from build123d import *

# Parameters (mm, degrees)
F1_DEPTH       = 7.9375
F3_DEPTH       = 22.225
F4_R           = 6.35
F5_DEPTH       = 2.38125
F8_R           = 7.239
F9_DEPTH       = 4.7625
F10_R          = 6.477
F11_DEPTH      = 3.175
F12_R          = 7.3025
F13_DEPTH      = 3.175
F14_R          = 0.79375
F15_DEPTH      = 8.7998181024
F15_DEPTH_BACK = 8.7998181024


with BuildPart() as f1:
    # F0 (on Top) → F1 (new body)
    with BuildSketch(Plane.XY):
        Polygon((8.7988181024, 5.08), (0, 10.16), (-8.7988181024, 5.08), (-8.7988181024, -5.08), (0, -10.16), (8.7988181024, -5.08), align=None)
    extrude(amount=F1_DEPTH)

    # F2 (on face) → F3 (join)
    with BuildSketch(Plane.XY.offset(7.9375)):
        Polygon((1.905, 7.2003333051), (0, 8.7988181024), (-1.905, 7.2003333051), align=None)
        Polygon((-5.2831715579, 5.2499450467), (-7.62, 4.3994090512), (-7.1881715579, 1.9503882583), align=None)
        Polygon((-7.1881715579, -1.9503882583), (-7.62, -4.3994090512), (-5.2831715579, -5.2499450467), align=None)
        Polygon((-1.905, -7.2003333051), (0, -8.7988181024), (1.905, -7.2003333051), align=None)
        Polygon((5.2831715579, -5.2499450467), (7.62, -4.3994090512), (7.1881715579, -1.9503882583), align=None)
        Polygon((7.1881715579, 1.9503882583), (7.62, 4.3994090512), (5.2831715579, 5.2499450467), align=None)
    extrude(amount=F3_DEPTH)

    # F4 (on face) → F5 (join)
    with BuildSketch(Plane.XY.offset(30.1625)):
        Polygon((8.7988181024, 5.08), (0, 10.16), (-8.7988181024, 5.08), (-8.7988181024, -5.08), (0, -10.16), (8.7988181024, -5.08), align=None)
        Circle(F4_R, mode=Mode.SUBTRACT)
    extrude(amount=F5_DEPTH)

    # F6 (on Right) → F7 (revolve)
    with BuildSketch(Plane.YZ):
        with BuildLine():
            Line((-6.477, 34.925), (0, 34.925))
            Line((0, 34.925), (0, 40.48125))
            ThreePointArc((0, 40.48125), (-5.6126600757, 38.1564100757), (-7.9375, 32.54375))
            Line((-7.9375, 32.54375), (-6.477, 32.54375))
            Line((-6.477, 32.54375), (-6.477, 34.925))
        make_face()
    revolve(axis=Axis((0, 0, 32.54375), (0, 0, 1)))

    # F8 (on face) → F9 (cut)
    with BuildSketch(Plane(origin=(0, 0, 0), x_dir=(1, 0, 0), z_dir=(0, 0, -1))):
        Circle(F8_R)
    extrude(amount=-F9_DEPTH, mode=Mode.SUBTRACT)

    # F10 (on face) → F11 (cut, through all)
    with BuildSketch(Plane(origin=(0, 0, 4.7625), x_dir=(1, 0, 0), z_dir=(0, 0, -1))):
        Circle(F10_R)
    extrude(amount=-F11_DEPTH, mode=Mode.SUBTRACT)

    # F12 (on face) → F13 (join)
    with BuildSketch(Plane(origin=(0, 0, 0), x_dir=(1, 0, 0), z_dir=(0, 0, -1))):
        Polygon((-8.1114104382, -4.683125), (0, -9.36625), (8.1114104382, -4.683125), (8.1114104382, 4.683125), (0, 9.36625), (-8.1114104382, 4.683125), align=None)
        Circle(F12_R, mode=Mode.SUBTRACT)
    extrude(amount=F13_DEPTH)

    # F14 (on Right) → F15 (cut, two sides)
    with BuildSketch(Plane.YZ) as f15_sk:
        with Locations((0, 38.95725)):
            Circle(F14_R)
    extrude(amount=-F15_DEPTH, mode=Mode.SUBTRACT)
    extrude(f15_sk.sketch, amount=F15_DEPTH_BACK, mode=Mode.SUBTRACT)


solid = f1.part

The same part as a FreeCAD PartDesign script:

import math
import FreeCAD as App
import Part
import Sketcher

V = App.Vector
Q = App.Units.Quantity

doc = App.newDocument("Part")
body = doc.addObject("PartDesign::Body", "Body")

# Sketch on XY plane
sketch1 = body.newObject("Sketcher::SketchObject", "Sketch")
sketch1.AttachmentSupport = (doc.getObject("XY_Plane"), [""])
sketch1.MapMode = "FlatFace"
sketch1.addGeometry([
    Part.LineSegment(V(9, 5, 0), V(0, 10, 0)),  # 0
    Part.LineSegment(V(0, 10, 0), V(-9, 5, 0)),  # 1
    Part.LineSegment(V(-9, 5, 0), V(-9, -5, 0)),  # 2
    Part.LineSegment(V(-9, -5, 0), V(0, -10, 0)),  # 3
    Part.LineSegment(V(0, -10, 0), V(9, -5, 0)),  # 4
    Part.LineSegment(V(9, -5, 0), V(9, 5, 0)),  # 5
], False)
sketch1.addConstraint([
    Sketcher.Constraint("Coincident", 0, 2, 1, 1),
    Sketcher.Constraint("Coincident", 1, 2, 2, 1),
    Sketcher.Constraint("Coincident", 2, 2, 3, 1),
    Sketcher.Constraint("Coincident", 3, 2, 4, 1),
    Sketcher.Constraint("Coincident", 4, 2, 5, 1),
    Sketcher.Constraint("Coincident", 5, 2, 0, 1),
    Sketcher.Constraint("Vertical", 2),
    Sketcher.Constraint("Vertical", 5),
    Sketcher.Constraint("Symmetric", 0, 2, 3, 2, -1, 1),
    Sketcher.Constraint("Symmetric", 1, 2, 4, 2, -1, 1),
    Sketcher.Constraint("PointOnObject", 0, 2, -2),
    Sketcher.Constraint("Parallel", 0, 3),
    Sketcher.Constraint("Horizontal", 2, 2, 4, 2),
    Sketcher.Constraint("DistanceY", 2, 2, 2, 1, Q("0.4 in")),
    Sketcher.Constraint("Angle", 0, Q("150 deg")),
    Sketcher.Constraint("Distance", 0, Q("0.4 in")),
])
pad1 = body.newObject("PartDesign::Pad", "Pad")
pad1.Profile = sketch1
pad1.Length = Q("0.3125 in")

# Sketch on XY plane
sketch2 = body.newObject("Sketcher::SketchObject", "Sketch001")
sketch2.AttachmentSupport = (doc.getObject("XY_Plane"), [""])
sketch2.MapMode = "FlatFace"
sketch2.AttachmentOffset = App.Placement(V(0, 0, 0.3125 * 25.4), App.Rotation())
sketch2.addGeometry([
    Part.LineSegment(V(1.9, 7.2, 0), V(0, 8.8, 0)),  # 0
    Part.LineSegment(V(0, 8.8, 0), V(-1.9, 7.2, 0)),  # 1
    Part.LineSegment(V(-1.9, 7.2, 0), V(1.9, 7.2, 0)),  # 2
    Part.LineSegment(V(-5.3, 5.2, 0), V(-7.6, 4.4, 0)),  # 3
    Part.LineSegment(V(-7.6, 4.4, 0), V(-7.2, 2, 0)),  # 4
    Part.LineSegment(V(-7.2, 2, 0), V(-5.3, 5.2, 0)),  # 5
    Part.LineSegment(V(-7.2, -2, 0), V(-7.6, -4.4, 0)),  # 6
    Part.LineSegment(V(-7.6, -4.4, 0), V(-5.3, -5.2, 0)),  # 7
    Part.LineSegment(V(-5.3, -5.2, 0), V(-7.2, -2, 0)),  # 8
    Part.LineSegment(V(-1.9, -7.2, 0), V(0, -8.8, 0)),  # 9
    Part.LineSegment(V(0, -8.8, 0), V(1.9, -7.2, 0)),  # 10
    Part.LineSegment(V(1.9, -7.2, 0), V(-1.9, -7.2, 0)),  # 11
    Part.LineSegment(V(5.3, -5.2, 0), V(7.6, -4.4, 0)),  # 12
    Part.LineSegment(V(7.6, -4.4, 0), V(7.2, -2, 0)),  # 13
    Part.LineSegment(V(7.2, -2, 0), V(5.3, -5.2, 0)),  # 14
    Part.LineSegment(V(7.2, 2, 0), V(7.6, 4.4, 0)),  # 15
    Part.LineSegment(V(7.6, 4.4, 0), V(5.3, 5.2, 0)),  # 16
    Part.LineSegment(V(5.3, 5.2, 0), V(7.2, 2, 0)),  # 17
], False)
sketch2.addConstraint([
    Sketcher.Constraint("Coincident", 0, 2, 1, 1),
    Sketcher.Constraint("Coincident", 1, 2, 2, 1),
    Sketcher.Constraint("Coincident", 2, 2, 0, 1),
    Sketcher.Constraint("Coincident", 3, 2, 4, 1),
    Sketcher.Constraint("Coincident", 4, 2, 5, 1),
    Sketcher.Constraint("Coincident", 5, 2, 3, 1),
    Sketcher.Constraint("Coincident", 6, 2, 7, 1),
    Sketcher.Constraint("Coincident", 7, 2, 8, 1),
    Sketcher.Constraint("Coincident", 8, 2, 6, 1),
    Sketcher.Constraint("Coincident", 9, 2, 10, 1),
    Sketcher.Constraint("Coincident", 10, 2, 11, 1),
    Sketcher.Constraint("Coincident", 11, 2, 9, 1),
    Sketcher.Constraint("Coincident", 12, 2, 13, 1),
    Sketcher.Constraint("Coincident", 13, 2, 14, 1),
    Sketcher.Constraint("Coincident", 14, 2, 12, 1),
    Sketcher.Constraint("Coincident", 15, 2, 16, 1),
    Sketcher.Constraint("Coincident", 16, 2, 17, 1),
    Sketcher.Constraint("Coincident", 17, 2, 15, 1),
    Sketcher.Constraint("Horizontal", 2),
    Sketcher.Constraint("Horizontal", 11),
    Sketcher.Constraint("Symmetric", 0, 2, 9, 2, -1, 1),
    Sketcher.Constraint("Symmetric", 1, 2, 10, 2, -1, 1),
    Sketcher.Constraint("Symmetric", 3, 2, 12, 2, -1, 1),
    Sketcher.Constraint("Symmetric", 4, 2, 13, 2, -1, 1),
    Sketcher.Constraint("Symmetric", 5, 2, 14, 2, -1, 1),
    Sketcher.Constraint("Symmetric", 6, 2, 15, 2, -1, 1),
    Sketcher.Constraint("Symmetric", 7, 2, 16, 2, -1, 1),
    Sketcher.Constraint("Symmetric", 8, 2, 17, 2, -1, 1),
    Sketcher.Constraint("Symmetric", 6, 2, 12, 2, -2),
    Sketcher.Constraint("Symmetric", 8, 2, 13, 2, -2),
    Sketcher.Constraint("Symmetric", 7, 2, 14, 2, -2),
    Sketcher.Constraint("PointOnObject", 0, 2, -2),
    Sketcher.Constraint("Parallel", 0, 9),
    Sketcher.Constraint("Vertical", 2, 2, 10, 2),
    Sketcher.Constraint("Equal", 1, 3),
    Sketcher.Constraint("Equal", 3, 4),
    Sketcher.Constraint("Angle", 0, Q("140 deg")),
    Sketcher.Constraint("Angle", 3, Q("-160 deg")),
    Sketcher.Constraint("Angle", 4, Q("-80 deg")),
    Sketcher.Constraint("DistanceX", 2, 1, 2, 2, Q("0.15 in")),
    Sketcher.Constraint("DistanceX", 3, 2, -1, 1, Q("0.3 in")),
    Sketcher.Constraint("DistanceY", -1, 1, 0, 2, Q("8.798818 mm")),
    Sketcher.Constraint("DistanceY", -1, 1, 3, 2, Q("4.399409 mm")),
])
pad2 = body.newObject("PartDesign::Pad", "Pad001")
pad2.Profile = sketch2
pad2.Length = Q("0.875 in")

# Sketch on XY plane
sketch3 = body.newObject("Sketcher::SketchObject", "Sketch002")
sketch3.AttachmentSupport = (doc.getObject("XY_Plane"), [""])
sketch3.MapMode = "FlatFace"
sketch3.AttachmentOffset = App.Placement(V(0, 0, 1.1875 * 25.4), App.Rotation())
sketch3.addGeometry([
    Part.LineSegment(V(9, 5, 0), V(0, 10, 0)),  # 0
    Part.LineSegment(V(0, 10, 0), V(-9, 5, 0)),  # 1
    Part.LineSegment(V(-9, 5, 0), V(-9, -5, 0)),  # 2
    Part.LineSegment(V(-9, -5, 0), V(0, -10, 0)),  # 3
    Part.LineSegment(V(0, -10, 0), V(9, -5, 0)),  # 4
    Part.LineSegment(V(9, -5, 0), V(9, 5, 0)),  # 5
    Part.Circle(V(0, 0, 0), V(0, 0, 1), 6),  # 6
], False)
sketch3.addConstraint([
    Sketcher.Constraint("Coincident", 0, 2, 1, 1),
    Sketcher.Constraint("Coincident", 1, 2, 2, 1),
    Sketcher.Constraint("Coincident", 2, 2, 3, 1),
    Sketcher.Constraint("Coincident", 3, 2, 4, 1),
    Sketcher.Constraint("Coincident", 4, 2, 5, 1),
    Sketcher.Constraint("Coincident", 5, 2, 0, 1),
    Sketcher.Constraint("Vertical", 2),
    Sketcher.Constraint("Vertical", 5),
    Sketcher.Constraint("Coincident", 6, 3, -1, 1),
    Sketcher.Constraint("Symmetric", 0, 2, 3, 2, -1, 1),
    Sketcher.Constraint("Symmetric", 1, 2, 4, 2, -1, 1),
    Sketcher.Constraint("PointOnObject", 0, 2, -2),
    Sketcher.Constraint("Parallel", 0, 3),
    Sketcher.Constraint("Horizontal", 2, 2, 4, 2),
    Sketcher.Constraint("Diameter", 6, Q("0.5 in")),
    Sketcher.Constraint("DistanceY", 2, 2, 2, 1, Q("0.4 in")),
    Sketcher.Constraint("Angle", 0, Q("150 deg")),
    Sketcher.Constraint("Distance", 0, Q("0.4 in")),
])
pad3 = body.newObject("PartDesign::Pad", "Pad002")
pad3.Profile = sketch3
pad3.Length = Q("0.09375 in")

# Sketch on YZ plane
sketch4 = body.newObject("Sketcher::SketchObject", "Sketch003")
sketch4.AttachmentSupport = (doc.getObject("YZ_Plane"), [""])
sketch4.MapMode = "FlatFace"
sketch4.addGeometry([
    Part.LineSegment(V(-6.5, 34.9, 0), V(0, 34.9, 0)),  # 0
    Part.LineSegment(V(0, 34.9, 0), V(0, 40.5, 0)),  # 1
    Part.ArcOfCircle(Part.Circle(V(0, 32.5, 0), V(0, 0, 1), 7.9), math.radians(90), math.radians(180)),  # 2
    Part.LineSegment(V(-7.9, 32.5, 0), V(-6.5, 32.5, 0)),  # 3
    Part.LineSegment(V(-6.5, 32.5, 0), V(-6.5, 34.9, 0)),  # 4
], False)
sketch4.addConstraint([
    Sketcher.Constraint("Coincident", 0, 2, 1, 1),
    Sketcher.Constraint("Coincident", 1, 2, 2, 1),
    Sketcher.Constraint("Coincident", 2, 2, 3, 1),
    Sketcher.Constraint("Coincident", 3, 2, 4, 1),
    Sketcher.Constraint("Coincident", 4, 2, 0, 1),
    Sketcher.Constraint("Horizontal", 0),
    Sketcher.Constraint("Vertical", 1),
    Sketcher.Constraint("Horizontal", 3),
    Sketcher.Constraint("Vertical", 4),
    Sketcher.Constraint("PointOnObject", 2, 3, -2),
    Sketcher.Constraint("PointOnObject", 0, 2, -2),
    Sketcher.Constraint("Radius", 2, Q("0.3125 in")),
    Sketcher.Constraint("DistanceX", 0, 1, 0, 2, Q("0.255 in")),
    Sketcher.Constraint("DistanceY", 1, 1, 1, 2, Q("0.21875 in")),
    Sketcher.Constraint("DistanceY", 4, 1, 4, 2, Q("0.09375 in")),
    Sketcher.Constraint("DistanceY", -1, 1, 2, 3, Q("1.28125 in")),
])
revolution = body.newObject("PartDesign::Revolution", "Revolution")
revolution.Profile = sketch4
revolution.ReferenceAxis = (sketch4, ["V_Axis"])
revolution.Angle = 360

# Sketch on XY plane
sketch5 = body.newObject("Sketcher::SketchObject", "Sketch004")
sketch5.AttachmentSupport = (doc.getObject("XY_Plane"), [""])
sketch5.MapMode = "FlatFace"
sketch5.addGeometry(Part.Circle(V(0, 0, 0), V(0, 0, 1), 7), False)
sketch5.addConstraint([
    Sketcher.Constraint("Coincident", 0, 3, -1, 1),
    Sketcher.Constraint("Diameter", 0, Q("0.57 in")),
])
pocket1 = body.newObject("PartDesign::Pocket", "Pocket")
pocket1.Profile = sketch5
pocket1.Length = Q("0.1875 in")
pocket1.Reversed = True

# Sketch on XY plane
sketch6 = body.newObject("Sketcher::SketchObject", "Sketch005")
sketch6.AttachmentSupport = (doc.getObject("XY_Plane"), [""])
sketch6.MapMode = "FlatFace"
sketch6.AttachmentOffset = App.Placement(V(0, 0, 0.1875 * 25.4), App.Rotation())
sketch6.addGeometry(Part.Circle(V(0, 0, 0), V(0, 0, 1), 6), False)
sketch6.addConstraint([
    Sketcher.Constraint("Coincident", 0, 3, -1, 1),
    Sketcher.Constraint("Diameter", 0, Q("0.51 in")),
])
pocket2 = body.newObject("PartDesign::Pocket", "Pocket001")
pocket2.Profile = sketch6
pocket2.Length = Q("0.125 in")
pocket2.Reversed = True

# Sketch on XY plane
sketch7 = body.newObject("Sketcher::SketchObject", "Sketch006")
sketch7.AttachmentSupport = (doc.getObject("XY_Plane"), [""])
sketch7.MapMode = "FlatFace"
sketch7.addGeometry([
    Part.LineSegment(V(-8, 5, 0), V(0, 9, 0)),  # 0
    Part.LineSegment(V(0, 9, 0), V(8, 5, 0)),  # 1
    Part.LineSegment(V(8, 5, 0), V(8, -5, 0)),  # 2
    Part.LineSegment(V(8, -5, 0), V(0, -9, 0)),  # 3
    Part.LineSegment(V(0, -9, 0), V(-8, -5, 0)),  # 4
    Part.LineSegment(V(-8, -5, 0), V(-8, 5, 0)),  # 5
    Part.Circle(V(0, 0, 0), V(0, 0, 1), 7),  # 6
], False)
sketch7.addConstraint([
    Sketcher.Constraint("Coincident", 0, 2, 1, 1),
    Sketcher.Constraint("Coincident", 1, 2, 2, 1),
    Sketcher.Constraint("Coincident", 2, 2, 3, 1),
    Sketcher.Constraint("Coincident", 3, 2, 4, 1),
    Sketcher.Constraint("Coincident", 4, 2, 5, 1),
    Sketcher.Constraint("Coincident", 5, 2, 0, 1),
    Sketcher.Constraint("Vertical", 2),
    Sketcher.Constraint("Vertical", 5),
    Sketcher.Constraint("Coincident", 6, 3, -1, 1),
    Sketcher.Constraint("Symmetric", 0, 2, 3, 2, -1, 1),
    Sketcher.Constraint("Symmetric", 1, 2, 4, 2, -1, 1),
    Sketcher.Constraint("PointOnObject", 0, 2, -2),
    Sketcher.Constraint("Parallel", 0, 3),
    Sketcher.Constraint("Horizontal", 2, 2, 4, 2),
    Sketcher.Constraint("Diameter", 6, Q("0.575 in")),
    Sketcher.Constraint("Angle", 0, Q("30 deg")),
    Sketcher.Constraint("DistanceY", 3, 2, 0, 2, Q("0.7375 in")),
    Sketcher.Constraint("DistanceY", 2, 2, 2, 1, Q("9.36625 mm")),
])
pad4 = body.newObject("PartDesign::Pad", "Pad003")
pad4.Profile = sketch7
pad4.Length = Q("0.125 in")
pad4.Reversed = True

# Sketch on YZ plane
sketch8 = body.newObject("Sketcher::SketchObject", "Sketch007")
sketch8.AttachmentSupport = (doc.getObject("YZ_Plane"), [""])
sketch8.MapMode = "FlatFace"
sketch8.addGeometry(Part.Circle(V(0, 39, 0), V(0, 0, 1), 0.8), False)
sketch8.addConstraint([
    Sketcher.Constraint("PointOnObject", 0, 3, -2),
    Sketcher.Constraint("Diameter", 0, Q("0.0625 in")),
    Sketcher.Constraint("DistanceY", -1, 1, 0, 3, Q("38.95725 mm")),
])
pocket3 = body.newObject("PartDesign::Pocket", "Pocket002")
pocket3.Profile = sketch8
pocket3.Type = "ThroughAll"
pocket3.Midplane = True

doc.recompute()
